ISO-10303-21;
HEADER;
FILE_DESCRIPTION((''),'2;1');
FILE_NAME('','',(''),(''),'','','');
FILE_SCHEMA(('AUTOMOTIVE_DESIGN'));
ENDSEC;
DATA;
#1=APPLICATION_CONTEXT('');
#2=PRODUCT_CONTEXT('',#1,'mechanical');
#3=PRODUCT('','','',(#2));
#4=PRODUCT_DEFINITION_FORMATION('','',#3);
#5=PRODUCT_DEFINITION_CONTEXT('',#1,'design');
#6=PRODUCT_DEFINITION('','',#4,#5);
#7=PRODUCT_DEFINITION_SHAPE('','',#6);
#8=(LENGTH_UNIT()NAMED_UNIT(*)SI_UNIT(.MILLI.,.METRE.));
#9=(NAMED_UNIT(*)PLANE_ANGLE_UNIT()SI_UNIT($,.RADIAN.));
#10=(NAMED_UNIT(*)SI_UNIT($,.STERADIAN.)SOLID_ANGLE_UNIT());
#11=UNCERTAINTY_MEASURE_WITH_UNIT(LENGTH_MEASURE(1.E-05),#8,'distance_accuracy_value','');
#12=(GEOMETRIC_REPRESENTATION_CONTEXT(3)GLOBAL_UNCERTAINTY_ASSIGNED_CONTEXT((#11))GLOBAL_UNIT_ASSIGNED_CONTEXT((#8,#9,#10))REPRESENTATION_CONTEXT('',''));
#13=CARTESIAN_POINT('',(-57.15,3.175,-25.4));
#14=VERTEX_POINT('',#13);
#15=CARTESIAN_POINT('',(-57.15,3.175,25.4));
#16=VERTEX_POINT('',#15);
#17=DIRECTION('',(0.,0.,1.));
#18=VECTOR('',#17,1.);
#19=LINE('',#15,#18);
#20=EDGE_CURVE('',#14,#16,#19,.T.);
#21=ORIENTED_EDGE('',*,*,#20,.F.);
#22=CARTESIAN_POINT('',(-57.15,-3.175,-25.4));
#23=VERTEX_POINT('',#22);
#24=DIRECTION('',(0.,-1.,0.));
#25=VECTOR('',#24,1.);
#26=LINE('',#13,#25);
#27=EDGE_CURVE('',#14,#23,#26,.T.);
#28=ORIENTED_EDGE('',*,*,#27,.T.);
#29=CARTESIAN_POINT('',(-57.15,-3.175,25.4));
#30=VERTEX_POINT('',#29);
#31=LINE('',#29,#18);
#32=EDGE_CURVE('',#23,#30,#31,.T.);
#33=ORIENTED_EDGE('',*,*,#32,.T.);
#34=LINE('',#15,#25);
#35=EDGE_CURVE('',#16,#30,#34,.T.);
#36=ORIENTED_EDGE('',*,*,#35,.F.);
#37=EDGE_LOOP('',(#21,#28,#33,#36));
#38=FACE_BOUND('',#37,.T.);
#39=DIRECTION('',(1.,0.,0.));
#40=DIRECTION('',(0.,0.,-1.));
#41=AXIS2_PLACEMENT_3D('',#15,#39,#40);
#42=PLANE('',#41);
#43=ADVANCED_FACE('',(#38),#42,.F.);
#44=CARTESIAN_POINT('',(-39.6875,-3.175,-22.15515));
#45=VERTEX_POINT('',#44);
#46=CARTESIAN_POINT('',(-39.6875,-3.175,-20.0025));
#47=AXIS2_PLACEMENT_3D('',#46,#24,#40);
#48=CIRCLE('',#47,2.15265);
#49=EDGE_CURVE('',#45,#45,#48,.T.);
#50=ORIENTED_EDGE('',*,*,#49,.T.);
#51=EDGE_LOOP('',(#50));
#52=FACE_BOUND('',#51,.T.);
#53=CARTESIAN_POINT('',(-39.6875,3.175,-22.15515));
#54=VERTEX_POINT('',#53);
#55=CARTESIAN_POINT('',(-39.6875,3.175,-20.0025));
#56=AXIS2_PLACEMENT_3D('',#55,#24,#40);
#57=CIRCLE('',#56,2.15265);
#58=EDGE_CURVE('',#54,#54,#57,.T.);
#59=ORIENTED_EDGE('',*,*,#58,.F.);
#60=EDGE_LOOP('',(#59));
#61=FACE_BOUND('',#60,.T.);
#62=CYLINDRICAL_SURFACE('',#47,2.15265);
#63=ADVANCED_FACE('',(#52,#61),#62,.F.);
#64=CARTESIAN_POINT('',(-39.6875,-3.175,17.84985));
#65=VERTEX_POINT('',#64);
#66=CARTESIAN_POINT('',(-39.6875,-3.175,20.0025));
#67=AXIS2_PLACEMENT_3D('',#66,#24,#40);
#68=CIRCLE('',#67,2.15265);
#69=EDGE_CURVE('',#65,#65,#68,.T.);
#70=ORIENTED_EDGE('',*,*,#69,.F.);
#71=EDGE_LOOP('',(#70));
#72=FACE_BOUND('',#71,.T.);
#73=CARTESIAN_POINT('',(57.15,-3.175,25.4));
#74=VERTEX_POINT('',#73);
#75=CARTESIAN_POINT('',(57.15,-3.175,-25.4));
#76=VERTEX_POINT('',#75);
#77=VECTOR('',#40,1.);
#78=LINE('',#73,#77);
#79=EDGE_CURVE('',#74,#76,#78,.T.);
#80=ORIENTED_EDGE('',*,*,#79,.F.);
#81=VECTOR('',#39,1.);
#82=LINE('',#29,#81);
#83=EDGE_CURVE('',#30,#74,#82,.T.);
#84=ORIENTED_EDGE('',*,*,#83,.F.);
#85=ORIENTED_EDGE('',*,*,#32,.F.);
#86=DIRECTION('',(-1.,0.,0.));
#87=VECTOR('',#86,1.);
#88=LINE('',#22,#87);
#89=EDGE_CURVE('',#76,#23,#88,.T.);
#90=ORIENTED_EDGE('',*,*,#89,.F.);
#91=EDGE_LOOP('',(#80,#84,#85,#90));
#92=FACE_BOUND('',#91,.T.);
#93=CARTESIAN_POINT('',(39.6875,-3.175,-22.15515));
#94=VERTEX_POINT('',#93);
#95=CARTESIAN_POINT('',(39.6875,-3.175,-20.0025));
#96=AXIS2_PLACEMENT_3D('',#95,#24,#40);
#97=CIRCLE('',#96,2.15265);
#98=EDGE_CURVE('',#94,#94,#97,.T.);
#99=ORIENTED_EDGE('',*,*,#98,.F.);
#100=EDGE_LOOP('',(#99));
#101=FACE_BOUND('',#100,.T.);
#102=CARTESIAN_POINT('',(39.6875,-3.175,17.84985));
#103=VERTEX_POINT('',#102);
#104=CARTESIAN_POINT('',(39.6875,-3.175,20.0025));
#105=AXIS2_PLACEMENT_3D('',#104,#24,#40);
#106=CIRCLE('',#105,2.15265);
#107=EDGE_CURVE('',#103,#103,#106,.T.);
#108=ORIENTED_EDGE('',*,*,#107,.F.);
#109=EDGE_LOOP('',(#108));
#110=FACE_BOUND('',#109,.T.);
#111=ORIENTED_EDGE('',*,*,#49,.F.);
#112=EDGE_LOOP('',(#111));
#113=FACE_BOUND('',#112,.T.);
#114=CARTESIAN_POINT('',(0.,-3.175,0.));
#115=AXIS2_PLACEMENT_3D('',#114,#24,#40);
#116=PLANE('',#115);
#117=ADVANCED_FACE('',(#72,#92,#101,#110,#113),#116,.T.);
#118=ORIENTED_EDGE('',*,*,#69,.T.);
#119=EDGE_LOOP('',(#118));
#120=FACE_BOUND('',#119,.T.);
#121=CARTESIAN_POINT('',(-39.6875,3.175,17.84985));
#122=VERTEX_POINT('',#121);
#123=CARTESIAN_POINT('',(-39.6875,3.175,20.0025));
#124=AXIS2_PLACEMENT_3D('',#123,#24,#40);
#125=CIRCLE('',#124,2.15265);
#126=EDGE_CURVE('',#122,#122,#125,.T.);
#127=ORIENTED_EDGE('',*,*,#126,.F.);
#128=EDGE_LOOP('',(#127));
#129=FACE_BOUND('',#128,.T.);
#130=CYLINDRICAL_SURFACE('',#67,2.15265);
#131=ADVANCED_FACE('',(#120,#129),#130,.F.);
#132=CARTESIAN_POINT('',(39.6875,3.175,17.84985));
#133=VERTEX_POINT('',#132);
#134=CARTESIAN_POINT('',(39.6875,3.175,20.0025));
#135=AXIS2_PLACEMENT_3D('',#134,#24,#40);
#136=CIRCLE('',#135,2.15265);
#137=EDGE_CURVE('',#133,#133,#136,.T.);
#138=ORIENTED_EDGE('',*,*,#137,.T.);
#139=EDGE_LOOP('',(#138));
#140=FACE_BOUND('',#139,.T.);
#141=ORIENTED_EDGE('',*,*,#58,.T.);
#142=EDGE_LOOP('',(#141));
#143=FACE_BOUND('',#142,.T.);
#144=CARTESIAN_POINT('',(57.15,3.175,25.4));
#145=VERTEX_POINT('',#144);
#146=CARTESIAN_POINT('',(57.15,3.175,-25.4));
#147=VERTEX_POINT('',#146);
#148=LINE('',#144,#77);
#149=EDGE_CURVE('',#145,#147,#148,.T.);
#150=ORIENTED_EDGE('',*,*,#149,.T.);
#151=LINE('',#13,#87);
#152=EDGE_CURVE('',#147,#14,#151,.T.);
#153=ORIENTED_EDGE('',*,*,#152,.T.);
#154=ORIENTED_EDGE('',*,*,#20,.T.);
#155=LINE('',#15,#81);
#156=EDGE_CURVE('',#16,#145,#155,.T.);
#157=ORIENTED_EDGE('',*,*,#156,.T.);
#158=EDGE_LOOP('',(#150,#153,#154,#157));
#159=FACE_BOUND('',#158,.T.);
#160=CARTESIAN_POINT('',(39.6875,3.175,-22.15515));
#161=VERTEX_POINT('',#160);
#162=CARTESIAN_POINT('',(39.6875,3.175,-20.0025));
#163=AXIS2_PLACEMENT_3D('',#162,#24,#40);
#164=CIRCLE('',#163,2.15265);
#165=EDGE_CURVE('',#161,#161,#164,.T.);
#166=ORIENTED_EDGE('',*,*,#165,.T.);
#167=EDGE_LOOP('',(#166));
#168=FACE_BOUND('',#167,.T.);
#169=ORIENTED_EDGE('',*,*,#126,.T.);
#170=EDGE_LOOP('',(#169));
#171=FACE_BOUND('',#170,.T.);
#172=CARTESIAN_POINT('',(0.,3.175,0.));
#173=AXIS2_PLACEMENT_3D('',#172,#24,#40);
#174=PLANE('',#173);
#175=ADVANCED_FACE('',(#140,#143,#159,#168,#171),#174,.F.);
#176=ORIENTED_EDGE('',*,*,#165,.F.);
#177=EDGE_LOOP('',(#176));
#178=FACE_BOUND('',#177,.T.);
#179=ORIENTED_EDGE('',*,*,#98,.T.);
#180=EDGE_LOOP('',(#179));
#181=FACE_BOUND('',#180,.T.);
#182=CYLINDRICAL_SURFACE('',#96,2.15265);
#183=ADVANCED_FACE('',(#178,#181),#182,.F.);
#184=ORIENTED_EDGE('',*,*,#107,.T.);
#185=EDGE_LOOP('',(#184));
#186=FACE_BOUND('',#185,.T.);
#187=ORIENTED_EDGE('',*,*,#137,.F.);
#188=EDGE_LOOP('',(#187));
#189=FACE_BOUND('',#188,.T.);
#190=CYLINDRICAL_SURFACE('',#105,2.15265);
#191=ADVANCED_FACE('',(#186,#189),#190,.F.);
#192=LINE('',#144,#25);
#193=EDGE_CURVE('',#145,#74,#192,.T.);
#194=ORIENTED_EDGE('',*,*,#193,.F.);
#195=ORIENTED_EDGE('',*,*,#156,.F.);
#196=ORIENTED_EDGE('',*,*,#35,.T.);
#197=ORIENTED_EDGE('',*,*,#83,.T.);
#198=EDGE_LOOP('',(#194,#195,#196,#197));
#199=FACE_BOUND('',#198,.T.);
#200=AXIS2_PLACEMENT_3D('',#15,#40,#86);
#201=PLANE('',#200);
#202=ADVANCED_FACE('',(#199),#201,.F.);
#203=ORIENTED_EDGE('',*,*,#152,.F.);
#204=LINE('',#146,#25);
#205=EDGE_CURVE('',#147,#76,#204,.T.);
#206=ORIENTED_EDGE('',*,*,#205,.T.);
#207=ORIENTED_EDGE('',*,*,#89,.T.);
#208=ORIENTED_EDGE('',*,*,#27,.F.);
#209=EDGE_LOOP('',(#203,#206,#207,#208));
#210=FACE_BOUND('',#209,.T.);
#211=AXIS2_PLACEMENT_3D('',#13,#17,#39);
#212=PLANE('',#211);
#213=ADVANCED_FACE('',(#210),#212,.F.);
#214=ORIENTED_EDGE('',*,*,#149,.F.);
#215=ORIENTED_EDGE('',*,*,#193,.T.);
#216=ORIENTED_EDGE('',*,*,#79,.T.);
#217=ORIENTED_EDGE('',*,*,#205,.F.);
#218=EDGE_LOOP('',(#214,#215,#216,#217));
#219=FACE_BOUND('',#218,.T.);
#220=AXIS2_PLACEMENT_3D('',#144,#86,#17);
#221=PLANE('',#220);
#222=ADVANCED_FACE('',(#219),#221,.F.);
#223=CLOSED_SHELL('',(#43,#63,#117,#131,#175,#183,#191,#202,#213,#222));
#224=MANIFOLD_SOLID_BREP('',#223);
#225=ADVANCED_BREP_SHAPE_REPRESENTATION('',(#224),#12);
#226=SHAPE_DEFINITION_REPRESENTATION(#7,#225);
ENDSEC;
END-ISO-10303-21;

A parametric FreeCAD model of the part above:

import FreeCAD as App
import Part
import Sketcher
Q = App.Units.Quantity

doc = App.newDocument("Part")
body = doc.addObject("PartDesign::Body", "Body")

# Sketch on XZ plane
sketch1 = body.newObject("Sketcher::SketchObject", "Sketch")
sketch1.AttachmentSupport = (doc.getObject("XZ_Plane"), [""])
sketch1.MapMode = "FlatFace"
sketch1.addGeometry(Part.LineSegment(App.Vector(-57, -25, 0), App.Vector(-57, 25, 0)), False)
sketch1.addGeometry(Part.LineSegment(App.Vector(-57, 25, 0), App.Vector(57, 25, 0)), False)
sketch1.addGeometry(Part.LineSegment(App.Vector(57, 25, 0), App.Vector(57, -25, 0)), False)
sketch1.addGeometry(Part.LineSegment(App.Vector(57, -25, 0), App.Vector(-57, -25, 0)), False)
sketch1.addConstraint(Sketcher.Constraint("Coincident", 0, 2, 1, 1))
sketch1.addConstraint(Sketcher.Constraint("Coincident", 1, 2, 2, 1))
sketch1.addConstraint(Sketcher.Constraint("Coincident", 2, 2, 3, 1))
sketch1.addConstraint(Sketcher.Constraint("Coincident", 3, 2, 0, 1))
sketch1.addConstraint(Sketcher.Constraint("Vertical", 0))
sketch1.addConstraint(Sketcher.Constraint("Horizontal", 1))
sketch1.addConstraint(Sketcher.Constraint("Vertical", 2))
sketch1.addConstraint(Sketcher.Constraint("Horizontal", 3))
sketch1.addConstraint(Sketcher.Constraint("Symmetric", 0, 2, 2, 2, -1, 1))
sketch1.addConstraint(Sketcher.Constraint("DistanceY", 0, 1, 0, 2, Q("2 in")))
sketch1.addConstraint(Sketcher.Constraint("DistanceX", 1, 1, 1, 2, Q("4.5 in")))
pad1 = body.newObject("PartDesign::Pad", "Pad")
pad1.Profile = sketch1
pad1.Length = Q("0.25 in")
pad1.Midplane = True

# Sketch on XZ plane
sketch2 = body.newObject("Sketcher::SketchObject", "Sketch001")
sketch2.AttachmentSupport = (doc.getObject("XZ_Plane"), [""])
sketch2.MapMode = "FlatFace"
sketch2.AttachmentOffset = App.Placement(App.Vector(0, 0, 0.125 * 25.4), App.Rotation())
sketch2.addGeometry(Part.Circle(App.Vector(39.7, 20, 0), App.Vector(0, 0, 1), 2.2), False)
sketch2.addGeometry(Part.Circle(App.Vector(39.7, -20, 0), App.Vector(0, 0, 1), 2.2), False)
sketch2.addGeometry(Part.Circle(App.Vector(-39.7, -20, 0), App.Vector(0, 0, 1), 2.2), False)
sketch2.addGeometry(Part.Circle(App.Vector(-39.7, 20, 0), App.Vector(0, 0, 1), 2.2), False)
sketch2.addConstraint(Sketcher.Constraint("Equal", 0, 1))
sketch2.addConstraint(Sketcher.Constraint("Equal", 1, 2))
sketch2.addConstraint(Sketcher.Constraint("Equal", 2, 3))
sketch2.addConstraint(Sketcher.Constraint("Symmetric", 0, 3, 2, 3, -1, 1))
sketch2.addConstraint(Sketcher.Constraint("Symmetric", 1, 3, 3, 3, -1, 1))
sketch2.addConstraint(Sketcher.Constraint("Symmetric", 1, 3, 2, 3, -2))
sketch2.addConstraint(Sketcher.Constraint("Diameter", 0, Q("0.1695 in")))
sketch2.addConstraint(Sketcher.Constraint("DistanceX", -1, 1, 0, 3, Q("1.5625 in")))
sketch2.addConstraint(Sketcher.Constraint("DistanceY", 1, 3, 0, 3, Q("1.575 in")))
doc.recompute()
hole = body.newObject("PartDesign::Hole", "Hole")
hole.Profile = sketch2
hole.ThreadType = "None"
hole.Diameter = Q("0.1695 in")
hole.DepthType = "ThroughAll"

doc.recompute()
